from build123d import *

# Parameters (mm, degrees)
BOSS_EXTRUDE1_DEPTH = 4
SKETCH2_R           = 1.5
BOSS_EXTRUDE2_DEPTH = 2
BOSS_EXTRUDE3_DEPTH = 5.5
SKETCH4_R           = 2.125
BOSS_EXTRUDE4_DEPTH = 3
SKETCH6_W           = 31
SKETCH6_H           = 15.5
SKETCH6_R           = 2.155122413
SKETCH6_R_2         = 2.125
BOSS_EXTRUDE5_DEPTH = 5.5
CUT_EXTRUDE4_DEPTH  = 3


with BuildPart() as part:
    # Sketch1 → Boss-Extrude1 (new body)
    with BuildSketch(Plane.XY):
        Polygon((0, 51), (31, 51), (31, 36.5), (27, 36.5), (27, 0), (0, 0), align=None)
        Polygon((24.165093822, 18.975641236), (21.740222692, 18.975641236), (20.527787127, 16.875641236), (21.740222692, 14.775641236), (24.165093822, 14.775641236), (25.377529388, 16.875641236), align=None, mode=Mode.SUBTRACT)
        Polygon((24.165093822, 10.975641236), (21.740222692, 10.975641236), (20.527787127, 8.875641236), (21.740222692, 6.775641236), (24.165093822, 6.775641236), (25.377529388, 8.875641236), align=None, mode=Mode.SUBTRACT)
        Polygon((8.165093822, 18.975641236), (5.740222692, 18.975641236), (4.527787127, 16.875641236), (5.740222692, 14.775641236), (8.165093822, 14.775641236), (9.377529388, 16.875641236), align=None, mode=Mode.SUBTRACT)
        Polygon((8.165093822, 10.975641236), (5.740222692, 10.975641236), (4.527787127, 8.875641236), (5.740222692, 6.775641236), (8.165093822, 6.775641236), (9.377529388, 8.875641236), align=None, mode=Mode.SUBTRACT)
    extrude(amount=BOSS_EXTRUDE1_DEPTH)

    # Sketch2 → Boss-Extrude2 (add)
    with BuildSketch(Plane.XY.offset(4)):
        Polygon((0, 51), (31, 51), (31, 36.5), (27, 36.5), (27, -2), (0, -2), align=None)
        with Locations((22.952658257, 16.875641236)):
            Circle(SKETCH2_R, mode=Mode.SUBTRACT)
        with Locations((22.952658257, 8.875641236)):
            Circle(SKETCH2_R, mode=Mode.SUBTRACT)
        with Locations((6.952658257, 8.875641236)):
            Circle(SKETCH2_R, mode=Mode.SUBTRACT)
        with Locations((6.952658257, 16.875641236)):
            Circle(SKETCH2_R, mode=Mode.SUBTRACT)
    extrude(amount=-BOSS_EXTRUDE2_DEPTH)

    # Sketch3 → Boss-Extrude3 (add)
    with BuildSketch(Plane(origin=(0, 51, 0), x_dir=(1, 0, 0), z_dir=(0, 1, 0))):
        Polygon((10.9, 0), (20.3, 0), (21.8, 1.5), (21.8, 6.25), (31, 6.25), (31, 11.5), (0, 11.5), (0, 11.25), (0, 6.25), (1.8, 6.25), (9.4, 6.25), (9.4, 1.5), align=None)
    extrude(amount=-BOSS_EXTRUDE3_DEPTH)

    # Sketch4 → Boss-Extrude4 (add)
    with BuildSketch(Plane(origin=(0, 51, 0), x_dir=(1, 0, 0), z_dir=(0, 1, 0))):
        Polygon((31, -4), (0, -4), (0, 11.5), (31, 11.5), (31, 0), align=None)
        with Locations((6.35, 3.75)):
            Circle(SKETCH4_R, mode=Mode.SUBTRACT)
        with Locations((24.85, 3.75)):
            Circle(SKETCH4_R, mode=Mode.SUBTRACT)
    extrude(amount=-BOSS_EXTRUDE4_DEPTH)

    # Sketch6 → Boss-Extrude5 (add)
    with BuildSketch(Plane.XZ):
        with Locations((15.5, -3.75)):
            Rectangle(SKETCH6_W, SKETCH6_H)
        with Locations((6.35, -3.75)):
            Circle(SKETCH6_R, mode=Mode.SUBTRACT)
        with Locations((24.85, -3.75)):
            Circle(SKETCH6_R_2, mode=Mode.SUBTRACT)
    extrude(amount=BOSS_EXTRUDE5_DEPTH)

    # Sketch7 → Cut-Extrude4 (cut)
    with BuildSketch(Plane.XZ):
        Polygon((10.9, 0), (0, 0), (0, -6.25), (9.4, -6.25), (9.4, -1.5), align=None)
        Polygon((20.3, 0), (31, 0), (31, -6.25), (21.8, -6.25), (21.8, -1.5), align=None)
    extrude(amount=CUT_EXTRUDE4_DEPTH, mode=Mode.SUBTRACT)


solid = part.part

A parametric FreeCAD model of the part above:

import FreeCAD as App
import Part
import Sketcher

V = App.Vector
Q = App.Units.Quantity


def add_polygon(sketch, points):
    """Adds a closed chain of lines whose ends are joined by coincident constraints."""
    first, n = sketch.GeometryCount, len(points)
    for a, b in zip(points, points[1:] + points[:1]):
        sketch.addGeometry(Part.LineSegment(App.Vector(*a, 0), App.Vector(*b, 0)), False)
    for i in range(n):
        sketch.addConstraint(Sketcher.Constraint("Coincident", first + i, 2, first + (i + 1) % n, 1))

doc = App.newDocument("Part")
body = doc.addObject("PartDesign::Body", "Body")

sketch1 = body.newObject("Sketcher::SketchObject", "Sketch")
sketch1.AttachmentSupport = (doc.getObject("XY_Plane"), [""])
sketch1.MapMode = "FlatFace"
add_polygon(sketch1, [(31, 51), (0, 51), (0, 0), (27, 0), (27, 36.5), (31, 36.5)])
add_polygon(sketch1, [(24.2, 11), (25.4, 8.9), (24.2, 6.8), (21.7, 6.8), (20.5, 8.9), (21.7, 11)])
add_polygon(sketch1, [(8.2, 11), (9.4, 8.9), (8.2, 6.8), (5.7, 6.8), (4.5, 8.9), (5.7, 11)])
add_polygon(sketch1, [(24.2, 19), (25.4, 16.9), (24.2, 14.8), (21.7, 14.8), (20.5, 16.9), (21.7, 19)])
add_polygon(sketch1, [(8.2, 19), (9.4, 16.9), (8.2, 14.8), (5.7, 14.8), (4.5, 16.9), (5.7, 19)])
sketch1.addConstraint(Sketcher.Constraint("Horizontal", 0))
sketch1.addConstraint(Sketcher.Constraint("Vertical", 1))
sketch1.addConstraint(Sketcher.Constraint("Horizontal", 2))
sketch1.addConstraint(Sketcher.Constraint("Vertical", 3))
sketch1.addConstraint(Sketcher.Constraint("Horizontal", 4))
sketch1.addConstraint(Sketcher.Constraint("Vertical", 5))
sketch1.addConstraint(Sketcher.Constraint("Horizontal", 8))
sketch1.addConstraint(Sketcher.Constraint("Horizontal", 11))
sketch1.addConstraint(Sketcher.Constraint("Horizontal", 14))
sketch1.addConstraint(Sketcher.Constraint("Horizontal", 17))
sketch1.addConstraint(Sketcher.Constraint("Horizontal", 20))
sketch1.addConstraint(Sketcher.Constraint("Horizontal", 23))
sketch1.addConstraint(Sketcher.Constraint("Horizontal", 26))
sketch1.addConstraint(Sketcher.Constraint("Horizontal", 29))
sketch1.addConstraint(Sketcher.Constraint("Coincident", 1, 2, -1, 1))
sketch1.addConstraint(Sketcher.Constraint("Parallel", 6, 9))
sketch1.addConstraint(Sketcher.Constraint("Parallel", 7, 10))
sketch1.addConstraint(Sketcher.Constraint("Parallel", 9, 12))
sketch1.addConstraint(Sketcher.Constraint("Parallel", 10, 13))
sketch1.addConstraint(Sketcher.Constraint("Parallel", 12, 15))
sketch1.addConstraint(Sketcher.Constraint("Parallel", 13, 16))
sketch1.addConstraint(Sketcher.Constraint("Parallel", 15, 18))
sketch1.addConstraint(Sketcher.Constraint("Parallel", 16, 19))
sketch1.addConstraint(Sketcher.Constraint("Parallel", 18, 21))
sketch1.addConstraint(Sketcher.Constraint("Parallel", 19, 22))
sketch1.addConstraint(Sketcher.Constraint("Parallel", 21, 24))
sketch1.addConstraint(Sketcher.Constraint("Parallel", 22, 25))
sketch1.addConstraint(Sketcher.Constraint("Parallel", 24, 27))
sketch1.addConstraint(Sketcher.Constraint("Parallel", 25, 28))
sketch1.addConstraint(Sketcher.Constraint("Horizontal", 6, 2, 9, 2))
sketch1.addConstraint(Sketcher.Constraint("Horizontal", 9, 2, 12, 2))
sketch1.addConstraint(Sketcher.Constraint("Horizontal", 8, 2, 13, 2))
sketch1.addConstraint(Sketcher.Constraint("Horizontal", 12, 2, 15, 2))
sketch1.addConstraint(Sketcher.Constraint("Horizontal", 11, 2, 16, 2))
sketch1.addConstraint(Sketcher.Constraint("Horizontal", 18, 2, 21, 2))
sketch1.addConstraint(Sketcher.Constraint("Horizontal", 21, 2, 24, 2))
sketch1.addConstraint(Sketcher.Constraint("Horizontal", 20, 2, 25, 2))
sketch1.addConstraint(Sketcher.Constraint("Horizontal", 24, 2, 27, 2))
sketch1.addConstraint(Sketcher.Constraint("Horizontal", 23, 2, 28, 2))
sketch1.addConstraint(Sketcher.Constraint("Vertical", 8, 2, 10, 2))
sketch1.addConstraint(Sketcher.Constraint("Vertical", 7, 2, 11, 2))
sketch1.addConstraint(Sketcher.Constraint("Vertical", 6, 2, 18, 2))
sketch1.addConstraint(Sketcher.Constraint("Vertical", 11, 2, 19, 2))
sketch1.addConstraint(Sketcher.Constraint("Vertical", 10, 2, 20, 2))
sketch1.addConstraint(Sketcher.Constraint("Vertical", 20, 2, 22, 2))
sketch1.addConstraint(Sketcher.Constraint("Vertical", 12, 2, 24, 2))
sketch1.addConstraint(Sketcher.Constraint("Vertical", 16, 2, 26, 2))
sketch1.addConstraint(Sketcher.Constraint("Equal", 11, 14))
sketch1.addConstraint(Sketcher.Constraint("DistanceX", 0, 2, 0, 1, 31.0))
sketch1.addConstraint(Sketcher.Constraint("DistanceX", 2, 1, 2, 2, 27.0))
sketch1.addConstraint(Sketcher.Constraint("DistanceY", 1, 2, 1, 1, 51.0))
sketch1.addConstraint(Sketcher.Constraint("Angle", 6, Q("-60 deg")))
sketch1.addConstraint(Sketcher.Constraint("DistanceY", 3, 1, 3, 2, 36.5))
sketch1.addConstraint(Sketcher.Constraint("DistanceX", 14, 2, 8, 2, 16.0))
sketch1.addConstraint(Sketcher.Constraint("DistanceY", 6, 2, 18, 2, 8.0))
sketch1.addConstraint(Sketcher.Constraint("DistanceY", 7, 2, 6, 2, 2.1))
sketch1.addConstraint(Sketcher.Constraint("DistanceX", 8, 2, 8, 1, 2.424871))
sketch1.addConstraint(Sketcher.Constraint("DistanceX", -1, 1, 6, 2, 25.377529))
sketch1.addConstraint(Sketcher.Constraint("DistanceY", -1, 1, 6, 2, 8.875641))
pad1 = body.newObject("PartDesign::Pad", "Pad")
pad1.Profile = sketch1
pad1.Length = 4

sketch2 = body.newObject("Sketcher::SketchObject", "Sketch001")
sketch2.AttachmentSupport = (doc.getObject("XY_Plane"), [""])
sketch2.MapMode = "FlatFace"
sketch2.AttachmentOffset = App.Placement(V(0, 0, 4), App.Rotation())
add_polygon(sketch2, [(31, 51), (0, 51), (0, -2), (27, -2), (27, 36.5), (31, 36.5)])
sketch2.addGeometry(Part.Circle(V(23, 8.9, 0), V(0, 0, 1), 1.5), False)
sketch2.addGeometry(Part.Circle(V(7, 8.9, 0), V(0, 0, 1), 1.5), False)
sketch2.addGeometry(Part.Circle(V(23, 16.9, 0), V(0, 0, 1), 1.5), False)
sketch2.addGeometry(Part.Circle(V(7, 16.9, 0), V(0, 0, 1), 1.5), False)
sketch2.addConstraint(Sketcher.Constraint("Horizontal", 0))
sketch2.addConstraint(Sketcher.Constraint("Vertical", 1))
sketch2.addConstraint(Sketcher.Constraint("Horizontal", 2))
sketch2.addConstraint(Sketcher.Constraint("Vertical", 3))
sketch2.addConstraint(Sketcher.Constraint("Horizontal", 4))
sketch2.addConstraint(Sketcher.Constraint("Vertical", 5))
sketch2.addConstraint(Sketcher.Constraint("Equal", 6, 7))
sketch2.addConstraint(Sketcher.Constraint("Equal", 7, 8))
sketch2.addConstraint(Sketcher.Constraint("Equal", 8, 9))
sketch2.addConstraint(Sketcher.Constraint("PointOnObject", 0, 2, -2))
sketch2.addConstraint(Sketcher.Constraint("Horizontal", 6, 3, 7, 3))
sketch2.addConstraint(Sketcher.Constraint("Horizontal", 8, 3, 9, 3))
sketch2.addConstraint(Sketcher.Constraint("Vertical", 6, 3, 8, 3))
sketch2.addConstraint(Sketcher.Constraint("Vertical", 7, 3, 9, 3))
sketch2.addConstraint(Sketcher.Constraint("Diameter", 6, 3.0))
sketch2.addConstraint(Sketcher.Constraint("DistanceX", 0, 2, 0, 1, 31.0))
sketch2.addConstraint(Sketcher.Constraint("DistanceX", 2, 1, 2, 2, 27.0))
sketch2.addConstraint(Sketcher.Constraint("DistanceY", 1, 2, 1, 1, 53.0))
sketch2.addConstraint(Sketcher.Constraint("DistanceY", 3, 1, 3, 2, 38.5))
sketch2.addConstraint(Sketcher.Constraint("DistanceY", -1, 1, 0, 2, 51.0))
sketch2.addConstraint(Sketcher.Constraint("DistanceX", 7, 3, 6, 3, 16.0))
sketch2.addConstraint(Sketcher.Constraint("DistanceY", 6, 3, 8, 3, 8.0))
sketch2.addConstraint(Sketcher.Constraint("DistanceX", -1, 1, 6, 3, 22.952658))
sketch2.addConstraint(Sketcher.Constraint("DistanceY", -1, 1, 6, 3, 8.875641))
pad2 = body.newObject("PartDesign::Pad", "Pad001")
pad2.Profile = sketch2
pad2.Length = 2
pad2.Reversed = True

sketch3 = body.newObject("Sketcher::SketchObject", "Sketch002")
sketch3.AttachmentSupport = (doc.getObject("XZ_Plane"), [""])
sketch3.MapMode = "FlatFace"
sketch3.AttachmentOffset = App.Placement(V(0, 0, -51), App.Rotation())
add_polygon(sketch3, [(10.9, 0), (20.3, 0), (21.8, -1.5), (21.8, -6.2), (31, -6.2), (31, -11.5), (0, -11.5), (0, -6.2), (9.4, -6.2), (9.4, -1.5)])
sketch3.addConstraint(Sketcher.Constraint("Horizontal", 0))
sketch3.addConstraint(Sketcher.Constraint("Vertical", 2))
sketch3.addConstraint(Sketcher.Constraint("Horizontal", 3))
sketch3.addConstraint(Sketcher.Constraint("Vertical", 4))
sketch3.addConstraint(Sketcher.Constraint("Horizontal", 5))
sketch3.addConstraint(Sketcher.Constraint("Vertical", 6))
sketch3.addConstraint(Sketcher.Constraint("Horizontal", 7))
sketch3.addConstraint(Sketcher.Constraint("Vertical", 8))
sketch3.addConstraint(Sketcher.Constraint("PointOnObject", 0, 2, -1))
sketch3.addConstraint(Sketcher.Constraint("PointOnObject", 5, 2, -2))
sketch3.addConstraint(Sketcher.Constraint("Perpendicular", 1, 9))
sketch3.addConstraint(Sketcher.Constraint("Horizontal", 3, 2, 6, 2))
sketch3.addConstraint(Sketcher.Constraint("Horizontal", 1, 2, 8, 2))
sketch3.addConstraint(Sketcher.Constraint("Equal", 0, 7))
sketch3.addConstraint(Sketcher.Constraint("Equal", 1, 9))
sketch3.addConstraint(Sketcher.Constraint("DistanceX", 5, 2, 5, 1, 31.0))
sketch3.addConstraint(Sketcher.Constraint("DistanceX", 0, 1, 0, 2, 9.4))
sketch3.addConstraint(Sketcher.Constraint("DistanceX", 3, 1, 3, 2, 9.2))
sketch3.addConstraint(Sketcher.Constraint("DistanceY", 4, 2, 1, 2, 10.0))
sketch3.addConstraint(Sketcher.Constraint("DistanceY", 2, 2, 2, 1, 4.75))
pad3 = body.newObject("PartDesign::Pad", "Pad002")
pad3.Profile = sketch3
pad3.Length = 5.5

sketch4 = body.newObject("Sketcher::SketchObject", "Sketch003")
sketch4.AttachmentSupport = (doc.getObject("XZ_Plane"), [""])
sketch4.MapMode = "FlatFace"
sketch4.AttachmentOffset = App.Placement(V(0, 0, -51), App.Rotation())
add_polygon(sketch4, [(0, 4), (31, 4), (31, -11.5), (0, -11.5)])
sketch4.addGeometry(Part.Circle(V(24.9, -3.8, 0), V(0, 0, 1), 2.1), False)
sketch4.addGeometry(Part.Circle(V(6.3, -3.8, 0), V(0, 0, 1), 2.1), False)
sketch4.addConstraint(Sketcher.Constraint("Horizontal", 0))
sketch4.addConstraint(Sketcher.Constraint("Vertical", 1))
sketch4.addConstraint(Sketcher.Constraint("Horizontal", 2))
sketch4.addConstraint(Sketcher.Constraint("Vertical", 3))
sketch4.addConstraint(Sketcher.Constraint("Equal", 4, 5))
sketch4.addConstraint(Sketcher.Constraint("PointOnObject", 2, 2, -2))
sketch4.addConstraint(Sketcher.Constraint("Horizontal", 4, 3, 5, 3))
sketch4.addConstraint(Sketcher.Constraint("Diameter", 4, 4.25))
sketch4.addConstraint(Sketcher.Constraint("DistanceX", 0, 1, 0, 2, 31.0))
sketch4.addConstraint(Sketcher.Constraint("DistanceY", 1, 2, 1, 1, 15.5))
sketch4.addConstraint(Sketcher.Constraint("DistanceY", -1, 1, 0, 2, 4.0))
sketch4.addConstraint(Sketcher.Constraint("DistanceX", 5, 3, 4, 3, 18.5))
sketch4.addConstraint(Sketcher.Constraint("DistanceX", -1, 1, 4, 3, 24.85))
sketch4.addConstraint(Sketcher.Constraint("DistanceY", 4, 3, -1, 1, 3.75))
pad4 = body.newObject("PartDesign::Pad", "Pad003")
pad4.Profile = sketch4
pad4.Length = 3

sketch5 = body.newObject("Sketcher::SketchObject", "Sketch004")
sketch5.AttachmentSupport = (doc.getObject("XZ_Plane"), [""])
sketch5.MapMode = "FlatFace"
add_polygon(sketch5, [(0, 4), (0, -11.5), (31, -11.5), (31, 4)])
sketch5.addGeometry(Part.Circle(V(6.3, -3.8, 0), V(0, 0, 1), 2.2), False)
sketch5.addGeometry(Part.Circle(V(24.9, -3.8, 0), V(0, 0, 1), 2.1), False)
sketch5.addConstraint(Sketcher.Constraint("Vertical", 0))
sketch5.addConstraint(Sketcher.Constraint("Horizontal", 1))
sketch5.addConstraint(Sketcher.Constraint("Vertical", 2))
sketch5.addConstraint(Sketcher.Constraint("Horizontal", 3))
sketch5.addConstraint(Sketcher.Constraint("PointOnObject", 0, 2, -2))
sketch5.addConstraint(Sketcher.Constraint("Horizontal", 4, 3, 5, 3))
sketch5.addConstraint(Sketcher.Constraint("Diameter", 5, 4.25))
sketch5.addConstraint(Sketcher.Constraint("DistanceX", 1, 1, 1, 2, 31.0))
sketch5.addConstraint(Sketcher.Constraint("DistanceY", 0, 2, 0, 1, 15.5))
sketch5.addConstraint(Sketcher.Constraint("DistanceY", -1, 1, 2, 2, 4.0))
sketch5.addConstraint(Sketcher.Constraint("DistanceX", 4, 3, 5, 3, 18.5))
sketch5.addConstraint(Sketcher.Constraint("DistanceX", -1, 1, 4, 3, 6.35))
sketch5.addConstraint(Sketcher.Constraint("DistanceY", 4, 3, -1, 1, 3.75))
sketch5.addConstraint(Sketcher.Constraint("Diameter", 4, 4.310245))
pad5 = body.newObject("PartDesign::Pad", "Pad004")
pad5.Profile = sketch5
pad5.Length = 5.5

sketch6 = body.newObject("Sketcher::SketchObject", "Sketch005")
sketch6.AttachmentSupport = (doc.getObject("XZ_Plane"), [""])
sketch6.MapMode = "FlatFace"
add_polygon(sketch6, [(10.9, 0), (0, 0), (0, -6.2), (9.4, -6.2), (9.4, -1.5)])
add_polygon(sketch6, [(31, 0), (20.3, 0), (21.8, -1.5), (21.8, -6.2), (31, -6.2)])
sketch6.addConstraint(Sketcher.Constraint("Horizontal", 0))
sketch6.addConstraint(Sketcher.Constraint("Vertical", 1))
sketch6.addConstraint(Sketcher.Constraint("Horizontal", 2))
sketch6.addConstraint(Sketcher.Constraint("Vertical", 3))
sketch6.addConstraint(Sketcher.Constraint("Horizontal", 5))
sketch6.addConstraint(Sketcher.Constraint("Vertical", 7))
sketch6.addConstraint(Sketcher.Constraint("Horizontal", 8))
sketch6.addConstraint(Sketcher.Constraint("Vertical", 9))
sketch6.addConstraint(Sketcher.Constraint("Coincident", 0, 2, -1, 1))
sketch6.addConstraint(Sketcher.Constraint("PointOnObject", 5, 2, -1))
sketch6.addConstraint(Sketcher.Constraint("Perpendicular", 4, 6))
sketch6.addConstraint(Sketcher.Constraint("Horizontal", 3, 2, 6, 2))
sketch6.addConstraint(Sketcher.Constraint("Horizontal", 2, 2, 7, 2))
sketch6.addConstraint(Sketcher.Constraint("Equal", 4, 6))
sketch6.addConstraint(Sketcher.Constraint("DistanceX", 0, 2, 0, 1, 10.9))
sketch6.addConstraint(Sketcher.Constraint("DistanceX", 2, 1, 2, 2, 9.4))
sketch6.addConstraint(Sketcher.Constraint("DistanceX", 5, 2, 5, 1, 10.7))
sketch6.addConstraint(Sketcher.Constraint("DistanceX", -1, 1, 8, 2, 31.0))
sketch6.addConstraint(Sketcher.Constraint("DistanceY", 1, 2, 1, 1, 6.25))
pocket1 = body.newObject("PartDesign::Pocket", "Pocket")
pocket1.Profile = sketch6
pocket1.Length = 3
pocket1.Reversed = True

doc.recompute()
